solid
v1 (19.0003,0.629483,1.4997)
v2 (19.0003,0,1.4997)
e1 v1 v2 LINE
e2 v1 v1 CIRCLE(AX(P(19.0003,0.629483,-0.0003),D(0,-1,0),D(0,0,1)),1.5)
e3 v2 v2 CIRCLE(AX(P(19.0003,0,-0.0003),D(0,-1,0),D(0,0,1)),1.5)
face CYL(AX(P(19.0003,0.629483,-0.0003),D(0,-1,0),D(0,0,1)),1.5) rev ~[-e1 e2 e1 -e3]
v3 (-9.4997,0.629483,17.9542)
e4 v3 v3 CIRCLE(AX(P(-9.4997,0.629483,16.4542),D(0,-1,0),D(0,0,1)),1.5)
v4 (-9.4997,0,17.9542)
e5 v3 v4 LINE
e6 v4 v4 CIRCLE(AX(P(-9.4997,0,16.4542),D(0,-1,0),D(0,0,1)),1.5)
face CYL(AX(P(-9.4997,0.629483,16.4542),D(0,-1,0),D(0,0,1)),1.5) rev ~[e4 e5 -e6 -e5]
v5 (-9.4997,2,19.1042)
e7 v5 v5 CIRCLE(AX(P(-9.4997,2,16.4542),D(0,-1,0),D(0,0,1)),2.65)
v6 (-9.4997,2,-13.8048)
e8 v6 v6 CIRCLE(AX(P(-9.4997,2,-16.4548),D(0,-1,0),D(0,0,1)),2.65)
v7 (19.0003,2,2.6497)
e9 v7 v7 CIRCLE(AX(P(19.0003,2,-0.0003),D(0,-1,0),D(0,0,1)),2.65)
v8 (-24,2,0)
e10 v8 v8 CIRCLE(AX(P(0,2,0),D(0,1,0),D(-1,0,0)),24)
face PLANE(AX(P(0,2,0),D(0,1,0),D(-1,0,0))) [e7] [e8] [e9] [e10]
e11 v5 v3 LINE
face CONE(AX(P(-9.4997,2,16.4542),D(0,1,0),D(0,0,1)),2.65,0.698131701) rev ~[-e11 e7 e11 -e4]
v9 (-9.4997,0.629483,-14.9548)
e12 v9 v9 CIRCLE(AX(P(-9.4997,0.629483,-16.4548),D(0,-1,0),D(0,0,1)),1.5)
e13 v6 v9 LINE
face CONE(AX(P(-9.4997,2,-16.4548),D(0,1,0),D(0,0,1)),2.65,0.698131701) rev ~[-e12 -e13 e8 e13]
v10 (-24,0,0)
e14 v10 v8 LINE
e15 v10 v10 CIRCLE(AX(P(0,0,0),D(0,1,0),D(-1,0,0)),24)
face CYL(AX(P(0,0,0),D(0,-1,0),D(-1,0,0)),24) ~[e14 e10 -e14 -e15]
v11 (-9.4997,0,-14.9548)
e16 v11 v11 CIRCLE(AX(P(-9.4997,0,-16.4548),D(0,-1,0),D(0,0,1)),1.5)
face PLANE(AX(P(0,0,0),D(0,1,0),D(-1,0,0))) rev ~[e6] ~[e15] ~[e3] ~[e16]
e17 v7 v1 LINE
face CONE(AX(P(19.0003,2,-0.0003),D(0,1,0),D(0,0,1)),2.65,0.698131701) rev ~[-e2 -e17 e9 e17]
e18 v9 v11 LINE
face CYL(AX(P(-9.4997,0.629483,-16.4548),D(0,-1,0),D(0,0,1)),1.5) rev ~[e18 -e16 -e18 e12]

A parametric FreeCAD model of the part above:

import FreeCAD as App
import Part
import Sketcher

V = App.Vector
Q = App.Units.Quantity

doc = App.newDocument("Part")
body = doc.addObject("PartDesign::Body", "Body")

# Sketch on XZ plane
sketch1 = body.newObject("Sketcher::SketchObject", "Sketch")
sketch1.AttachmentSupport = (doc.getObject("XZ_Plane"), [""])
sketch1.MapMode = "FlatFace"
sketch1.addGeometry(Part.Circle(V(0, 0, 0), V(0, 0, 1), 24), False)
sketch1.addConstraint([
    Sketcher.Constraint("Coincident", 0, 3, -1, 1),
    Sketcher.Constraint("Diameter", 0, Q("48 mm")),
])
pad1 = body.newObject("PartDesign::Pad", "Pad")
pad1.Profile = sketch1
pad1.Length = 2
pad1.Reversed = True

# Sketch on XZ plane
sketch2 = body.newObject("Sketcher::SketchObject", "Sketch001")
sketch2.AttachmentSupport = (doc.getObject("XZ_Plane"), [""])
sketch2.MapMode = "FlatFace"
sketch2.AttachmentOffset = App.Placement(V(0, 0, -2), App.Rotation())
sketch2.addGeometry([
    Part.Circle(V(-9.5, 16.5, 0), V(0, 0, 1), 1.5),
    Part.Circle(V(-9.5, -16.5, 0), V(0, 0, 1), 1.5),
    Part.Circle(V(19, 0, 0), V(0, 0, 1), 1.5),
], False)
sketch2.addConstraint([
    Sketcher.Constraint("Equal", 0, 1),
    Sketcher.Constraint("Equal", 1, 2),
    Sketcher.Constraint("Vertical", 0, 3, 1, 3),
    Sketcher.Constraint("Diameter", 0, Q("3 mm")),
    Sketcher.Constraint("DistanceX", 0, 3, 2, 3, Q("28.5 mm")),
    Sketcher.Constraint("DistanceY", 1, 3, 0, 3, Q("32.909 mm")),
    Sketcher.Constraint("DistanceX", 0, 3, -1, 1, Q("9.4997 mm")),
    Sketcher.Constraint("DistanceY", -1, 1, 0, 3, Q("16.4542 mm")),
    Sketcher.Constraint("DistanceY", 2, 3, -1, 1, Q("0.0003 mm")),
])
doc.recompute()
hole = body.newObject("PartDesign::Hole", "Hole")
hole.Profile = sketch2
hole.ThreadType = "None"
hole.Diameter = 3
hole.DepthType = "Dimension"
hole.Depth = 2
hole.DrillPoint = "Flat"
hole.HoleCutType = "Countersink"
hole.HoleCutDiameter = 5.3
hole.HoleCutCountersinkAngle = 80
hole.Reversed = True

doc.recompute()
